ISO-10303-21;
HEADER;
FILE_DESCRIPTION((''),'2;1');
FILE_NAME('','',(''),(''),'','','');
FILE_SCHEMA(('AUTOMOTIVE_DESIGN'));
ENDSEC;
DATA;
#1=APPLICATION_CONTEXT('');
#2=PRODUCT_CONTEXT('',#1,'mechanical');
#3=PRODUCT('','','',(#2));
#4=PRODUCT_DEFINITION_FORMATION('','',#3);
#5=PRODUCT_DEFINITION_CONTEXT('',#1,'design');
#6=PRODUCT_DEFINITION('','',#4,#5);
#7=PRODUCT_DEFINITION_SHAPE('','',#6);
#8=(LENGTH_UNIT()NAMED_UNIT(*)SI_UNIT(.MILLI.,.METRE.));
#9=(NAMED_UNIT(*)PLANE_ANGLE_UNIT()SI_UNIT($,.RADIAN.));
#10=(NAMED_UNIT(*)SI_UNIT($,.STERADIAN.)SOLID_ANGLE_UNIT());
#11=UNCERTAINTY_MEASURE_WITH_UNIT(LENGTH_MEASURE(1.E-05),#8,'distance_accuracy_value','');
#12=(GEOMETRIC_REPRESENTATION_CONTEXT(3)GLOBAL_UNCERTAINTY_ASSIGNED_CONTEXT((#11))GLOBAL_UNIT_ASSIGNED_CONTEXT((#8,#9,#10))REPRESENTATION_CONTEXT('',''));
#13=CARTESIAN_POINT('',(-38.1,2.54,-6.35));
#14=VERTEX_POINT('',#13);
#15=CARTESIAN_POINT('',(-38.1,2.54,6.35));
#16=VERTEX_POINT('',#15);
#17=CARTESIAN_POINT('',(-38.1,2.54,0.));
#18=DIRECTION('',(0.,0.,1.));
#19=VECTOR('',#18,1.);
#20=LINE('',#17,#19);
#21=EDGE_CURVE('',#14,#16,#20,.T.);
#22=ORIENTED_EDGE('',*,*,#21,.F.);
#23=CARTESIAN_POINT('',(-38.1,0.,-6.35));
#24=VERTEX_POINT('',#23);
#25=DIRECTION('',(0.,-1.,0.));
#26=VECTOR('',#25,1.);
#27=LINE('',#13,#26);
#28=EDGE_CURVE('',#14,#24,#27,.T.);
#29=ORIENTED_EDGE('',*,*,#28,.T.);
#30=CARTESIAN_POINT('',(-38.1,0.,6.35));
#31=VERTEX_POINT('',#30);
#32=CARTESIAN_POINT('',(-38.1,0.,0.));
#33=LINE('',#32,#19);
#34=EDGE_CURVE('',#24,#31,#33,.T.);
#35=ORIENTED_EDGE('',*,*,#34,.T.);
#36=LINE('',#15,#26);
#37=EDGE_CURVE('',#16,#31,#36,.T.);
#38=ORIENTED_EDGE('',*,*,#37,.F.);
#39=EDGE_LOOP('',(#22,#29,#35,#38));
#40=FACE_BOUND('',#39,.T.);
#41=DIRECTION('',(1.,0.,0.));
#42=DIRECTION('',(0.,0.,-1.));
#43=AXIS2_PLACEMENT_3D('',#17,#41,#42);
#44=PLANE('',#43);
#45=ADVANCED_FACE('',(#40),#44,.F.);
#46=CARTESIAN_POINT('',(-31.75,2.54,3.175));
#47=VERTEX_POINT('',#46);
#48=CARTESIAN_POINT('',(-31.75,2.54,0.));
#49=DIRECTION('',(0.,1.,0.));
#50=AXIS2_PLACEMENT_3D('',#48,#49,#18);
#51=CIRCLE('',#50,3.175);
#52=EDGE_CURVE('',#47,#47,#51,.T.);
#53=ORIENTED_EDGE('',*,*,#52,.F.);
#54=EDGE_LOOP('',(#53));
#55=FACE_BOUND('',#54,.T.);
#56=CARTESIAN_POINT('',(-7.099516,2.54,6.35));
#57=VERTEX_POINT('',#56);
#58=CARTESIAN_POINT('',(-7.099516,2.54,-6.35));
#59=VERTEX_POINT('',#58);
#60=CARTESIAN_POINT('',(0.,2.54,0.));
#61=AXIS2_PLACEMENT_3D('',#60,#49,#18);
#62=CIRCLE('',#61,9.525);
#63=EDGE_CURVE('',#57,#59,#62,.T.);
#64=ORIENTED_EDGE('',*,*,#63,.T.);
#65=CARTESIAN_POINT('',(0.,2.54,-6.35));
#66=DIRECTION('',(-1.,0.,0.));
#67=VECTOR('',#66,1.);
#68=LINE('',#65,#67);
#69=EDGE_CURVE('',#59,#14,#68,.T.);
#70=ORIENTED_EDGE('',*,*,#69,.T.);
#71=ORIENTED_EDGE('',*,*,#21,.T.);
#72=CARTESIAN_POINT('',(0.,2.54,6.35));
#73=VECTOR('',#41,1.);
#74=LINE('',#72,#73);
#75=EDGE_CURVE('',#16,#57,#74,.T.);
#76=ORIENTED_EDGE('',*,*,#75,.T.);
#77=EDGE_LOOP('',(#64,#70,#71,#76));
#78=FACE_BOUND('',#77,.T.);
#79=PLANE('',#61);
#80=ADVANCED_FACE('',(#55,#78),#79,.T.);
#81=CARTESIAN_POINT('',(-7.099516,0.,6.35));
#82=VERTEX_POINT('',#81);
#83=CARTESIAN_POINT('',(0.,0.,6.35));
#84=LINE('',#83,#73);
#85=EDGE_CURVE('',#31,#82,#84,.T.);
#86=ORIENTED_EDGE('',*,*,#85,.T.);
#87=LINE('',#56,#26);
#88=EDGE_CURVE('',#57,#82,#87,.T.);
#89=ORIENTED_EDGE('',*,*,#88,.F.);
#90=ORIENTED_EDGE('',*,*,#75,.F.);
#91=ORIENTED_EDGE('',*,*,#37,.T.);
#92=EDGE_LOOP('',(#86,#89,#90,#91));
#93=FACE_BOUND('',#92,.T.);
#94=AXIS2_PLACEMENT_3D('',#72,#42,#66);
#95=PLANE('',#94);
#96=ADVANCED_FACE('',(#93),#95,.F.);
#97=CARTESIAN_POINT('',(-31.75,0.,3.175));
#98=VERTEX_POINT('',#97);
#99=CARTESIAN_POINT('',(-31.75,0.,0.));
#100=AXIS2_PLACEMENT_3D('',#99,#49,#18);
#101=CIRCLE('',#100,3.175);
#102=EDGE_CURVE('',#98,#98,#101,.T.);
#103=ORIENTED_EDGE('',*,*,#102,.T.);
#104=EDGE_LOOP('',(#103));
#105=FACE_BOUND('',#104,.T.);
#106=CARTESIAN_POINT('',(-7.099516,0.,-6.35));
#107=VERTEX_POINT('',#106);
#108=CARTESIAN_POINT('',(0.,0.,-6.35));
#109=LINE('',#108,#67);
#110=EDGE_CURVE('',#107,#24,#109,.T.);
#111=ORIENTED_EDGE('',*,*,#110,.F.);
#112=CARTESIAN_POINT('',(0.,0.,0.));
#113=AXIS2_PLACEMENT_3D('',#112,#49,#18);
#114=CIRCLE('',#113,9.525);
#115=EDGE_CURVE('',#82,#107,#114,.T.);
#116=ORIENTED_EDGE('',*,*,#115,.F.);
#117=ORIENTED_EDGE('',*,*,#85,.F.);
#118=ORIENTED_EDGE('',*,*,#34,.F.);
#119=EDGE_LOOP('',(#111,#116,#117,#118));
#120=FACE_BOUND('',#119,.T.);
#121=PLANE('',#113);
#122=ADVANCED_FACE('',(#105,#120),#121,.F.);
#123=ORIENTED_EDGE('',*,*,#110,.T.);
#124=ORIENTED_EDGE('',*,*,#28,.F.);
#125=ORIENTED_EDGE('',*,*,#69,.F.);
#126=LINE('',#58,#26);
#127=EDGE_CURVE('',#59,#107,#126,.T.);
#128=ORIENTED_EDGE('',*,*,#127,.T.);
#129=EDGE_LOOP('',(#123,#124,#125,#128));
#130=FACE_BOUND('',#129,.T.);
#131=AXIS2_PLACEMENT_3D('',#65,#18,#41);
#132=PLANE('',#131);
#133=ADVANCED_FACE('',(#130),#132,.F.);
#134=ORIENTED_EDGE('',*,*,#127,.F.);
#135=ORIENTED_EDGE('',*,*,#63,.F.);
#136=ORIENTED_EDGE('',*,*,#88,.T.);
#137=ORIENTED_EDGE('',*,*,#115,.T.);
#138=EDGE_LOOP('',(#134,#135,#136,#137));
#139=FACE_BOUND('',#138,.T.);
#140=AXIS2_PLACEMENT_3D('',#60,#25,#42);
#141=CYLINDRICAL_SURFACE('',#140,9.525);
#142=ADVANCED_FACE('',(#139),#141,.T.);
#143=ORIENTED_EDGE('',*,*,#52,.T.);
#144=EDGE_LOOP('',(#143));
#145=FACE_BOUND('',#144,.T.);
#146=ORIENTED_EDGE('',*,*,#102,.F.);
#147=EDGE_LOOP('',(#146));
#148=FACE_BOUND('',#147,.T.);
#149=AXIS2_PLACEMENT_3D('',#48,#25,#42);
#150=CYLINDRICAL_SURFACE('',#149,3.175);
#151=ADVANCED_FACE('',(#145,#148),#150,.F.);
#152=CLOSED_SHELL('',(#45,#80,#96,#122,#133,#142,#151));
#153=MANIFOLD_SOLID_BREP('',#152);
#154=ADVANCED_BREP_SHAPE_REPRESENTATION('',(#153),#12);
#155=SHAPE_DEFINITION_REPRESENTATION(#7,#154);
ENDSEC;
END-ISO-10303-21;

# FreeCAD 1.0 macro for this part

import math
import FreeCAD as App
import Part
import Sketcher
from FreeCAD import Vector
Q = App.Units.Quantity

doc = App.newDocument("Part")
body = doc.addObject("PartDesign::Body", "Body")

sketch1 = body.newObject("Sketcher::SketchObject", "Sketch")
sketch1.AttachmentSupport = (doc.getObject("XZ_Plane"), [""])
sketch1.MapMode = "FlatFace"
sketch1.addGeometry(Part.LineSegment(Vector(-38.1, 6.3, 0), Vector(-7.1, 6.3, 0)), False)
sketch1.addGeometry(Part.ArcOfCircle(Part.Circle(Vector(0, 0, 0), Vector(0, 0, 1), 9.5), math.radians(0), math.radians(138)), False)
sketch1.addGeometry(Part.ArcOfCircle(Part.Circle(Vector(0, 0, 0), Vector(0, 0, 1), 9.5), math.radians(-138), math.radians(0)), False)
sketch1.addGeometry(Part.LineSegment(Vector(-7.1, -6.3, 0), Vector(-38.1, -6.3, 0)), False)
sketch1.addGeometry(Part.LineSegment(Vector(-38.1, -6.3, 0), Vector(-38.1, 6.3, 0)), False)
sketch1.addGeometry(Part.Circle(Vector(-31.8, 0, 0), Vector(0, 0, 1), 3.2), False)
sketch1.addConstraint(Sketcher.Constraint("Coincident", 0, 2, 1, 2))
sketch1.addConstraint(Sketcher.Constraint("Tangent", 1, 1, 2, 2))
sketch1.addConstraint(Sketcher.Constraint("Coincident", 2, 1, 3, 1))
sketch1.addConstraint(Sketcher.Constraint("Coincident", 3, 2, 4, 1))
sketch1.addConstraint(Sketcher.Constraint("Coincident", 4, 2, 0, 1))
sketch1.addConstraint(Sketcher.Constraint("Horizontal", 0))
sketch1.addConstraint(Sketcher.Constraint("Horizontal", 3))
sketch1.addConstraint(Sketcher.Constraint("Vertical", 4))
sketch1.addConstraint(Sketcher.Constraint("Coincident", 1, 3, -1, 1))
sketch1.addConstraint(Sketcher.Constraint("Equal", 1, 2))
sketch1.addConstraint(Sketcher.Constraint("PointOnObject", 5, 3, -1))
sketch1.addConstraint(Sketcher.Constraint("PointOnObject", 1, 1, -1))
sketch1.addConstraint(Sketcher.Constraint("Vertical", 0, 2, 2, 1))
sketch1.addConstraint(Sketcher.Constraint("Diameter", 5, Q("0.25 in")))
sketch1.addConstraint(Sketcher.Constraint("DistanceY", 4, 1, 4, 2, Q("0.5 in")))
sketch1.addConstraint(Sketcher.Constraint("Radius", 1, Q("0.375 in")))
sketch1.addConstraint(Sketcher.Constraint("DistanceX", 3, 2, -1, 1, Q("1.5 in")))
sketch1.addConstraint(Sketcher.Constraint("DistanceX", 5, 3, -1, 1, Q("1.25 in")))
pad1 = body.newObject("PartDesign::Pad", "Pad")
pad1.Profile = sketch1
pad1.Length = Q("0.1 in")
pad1.Reversed = True

doc.recompute()
